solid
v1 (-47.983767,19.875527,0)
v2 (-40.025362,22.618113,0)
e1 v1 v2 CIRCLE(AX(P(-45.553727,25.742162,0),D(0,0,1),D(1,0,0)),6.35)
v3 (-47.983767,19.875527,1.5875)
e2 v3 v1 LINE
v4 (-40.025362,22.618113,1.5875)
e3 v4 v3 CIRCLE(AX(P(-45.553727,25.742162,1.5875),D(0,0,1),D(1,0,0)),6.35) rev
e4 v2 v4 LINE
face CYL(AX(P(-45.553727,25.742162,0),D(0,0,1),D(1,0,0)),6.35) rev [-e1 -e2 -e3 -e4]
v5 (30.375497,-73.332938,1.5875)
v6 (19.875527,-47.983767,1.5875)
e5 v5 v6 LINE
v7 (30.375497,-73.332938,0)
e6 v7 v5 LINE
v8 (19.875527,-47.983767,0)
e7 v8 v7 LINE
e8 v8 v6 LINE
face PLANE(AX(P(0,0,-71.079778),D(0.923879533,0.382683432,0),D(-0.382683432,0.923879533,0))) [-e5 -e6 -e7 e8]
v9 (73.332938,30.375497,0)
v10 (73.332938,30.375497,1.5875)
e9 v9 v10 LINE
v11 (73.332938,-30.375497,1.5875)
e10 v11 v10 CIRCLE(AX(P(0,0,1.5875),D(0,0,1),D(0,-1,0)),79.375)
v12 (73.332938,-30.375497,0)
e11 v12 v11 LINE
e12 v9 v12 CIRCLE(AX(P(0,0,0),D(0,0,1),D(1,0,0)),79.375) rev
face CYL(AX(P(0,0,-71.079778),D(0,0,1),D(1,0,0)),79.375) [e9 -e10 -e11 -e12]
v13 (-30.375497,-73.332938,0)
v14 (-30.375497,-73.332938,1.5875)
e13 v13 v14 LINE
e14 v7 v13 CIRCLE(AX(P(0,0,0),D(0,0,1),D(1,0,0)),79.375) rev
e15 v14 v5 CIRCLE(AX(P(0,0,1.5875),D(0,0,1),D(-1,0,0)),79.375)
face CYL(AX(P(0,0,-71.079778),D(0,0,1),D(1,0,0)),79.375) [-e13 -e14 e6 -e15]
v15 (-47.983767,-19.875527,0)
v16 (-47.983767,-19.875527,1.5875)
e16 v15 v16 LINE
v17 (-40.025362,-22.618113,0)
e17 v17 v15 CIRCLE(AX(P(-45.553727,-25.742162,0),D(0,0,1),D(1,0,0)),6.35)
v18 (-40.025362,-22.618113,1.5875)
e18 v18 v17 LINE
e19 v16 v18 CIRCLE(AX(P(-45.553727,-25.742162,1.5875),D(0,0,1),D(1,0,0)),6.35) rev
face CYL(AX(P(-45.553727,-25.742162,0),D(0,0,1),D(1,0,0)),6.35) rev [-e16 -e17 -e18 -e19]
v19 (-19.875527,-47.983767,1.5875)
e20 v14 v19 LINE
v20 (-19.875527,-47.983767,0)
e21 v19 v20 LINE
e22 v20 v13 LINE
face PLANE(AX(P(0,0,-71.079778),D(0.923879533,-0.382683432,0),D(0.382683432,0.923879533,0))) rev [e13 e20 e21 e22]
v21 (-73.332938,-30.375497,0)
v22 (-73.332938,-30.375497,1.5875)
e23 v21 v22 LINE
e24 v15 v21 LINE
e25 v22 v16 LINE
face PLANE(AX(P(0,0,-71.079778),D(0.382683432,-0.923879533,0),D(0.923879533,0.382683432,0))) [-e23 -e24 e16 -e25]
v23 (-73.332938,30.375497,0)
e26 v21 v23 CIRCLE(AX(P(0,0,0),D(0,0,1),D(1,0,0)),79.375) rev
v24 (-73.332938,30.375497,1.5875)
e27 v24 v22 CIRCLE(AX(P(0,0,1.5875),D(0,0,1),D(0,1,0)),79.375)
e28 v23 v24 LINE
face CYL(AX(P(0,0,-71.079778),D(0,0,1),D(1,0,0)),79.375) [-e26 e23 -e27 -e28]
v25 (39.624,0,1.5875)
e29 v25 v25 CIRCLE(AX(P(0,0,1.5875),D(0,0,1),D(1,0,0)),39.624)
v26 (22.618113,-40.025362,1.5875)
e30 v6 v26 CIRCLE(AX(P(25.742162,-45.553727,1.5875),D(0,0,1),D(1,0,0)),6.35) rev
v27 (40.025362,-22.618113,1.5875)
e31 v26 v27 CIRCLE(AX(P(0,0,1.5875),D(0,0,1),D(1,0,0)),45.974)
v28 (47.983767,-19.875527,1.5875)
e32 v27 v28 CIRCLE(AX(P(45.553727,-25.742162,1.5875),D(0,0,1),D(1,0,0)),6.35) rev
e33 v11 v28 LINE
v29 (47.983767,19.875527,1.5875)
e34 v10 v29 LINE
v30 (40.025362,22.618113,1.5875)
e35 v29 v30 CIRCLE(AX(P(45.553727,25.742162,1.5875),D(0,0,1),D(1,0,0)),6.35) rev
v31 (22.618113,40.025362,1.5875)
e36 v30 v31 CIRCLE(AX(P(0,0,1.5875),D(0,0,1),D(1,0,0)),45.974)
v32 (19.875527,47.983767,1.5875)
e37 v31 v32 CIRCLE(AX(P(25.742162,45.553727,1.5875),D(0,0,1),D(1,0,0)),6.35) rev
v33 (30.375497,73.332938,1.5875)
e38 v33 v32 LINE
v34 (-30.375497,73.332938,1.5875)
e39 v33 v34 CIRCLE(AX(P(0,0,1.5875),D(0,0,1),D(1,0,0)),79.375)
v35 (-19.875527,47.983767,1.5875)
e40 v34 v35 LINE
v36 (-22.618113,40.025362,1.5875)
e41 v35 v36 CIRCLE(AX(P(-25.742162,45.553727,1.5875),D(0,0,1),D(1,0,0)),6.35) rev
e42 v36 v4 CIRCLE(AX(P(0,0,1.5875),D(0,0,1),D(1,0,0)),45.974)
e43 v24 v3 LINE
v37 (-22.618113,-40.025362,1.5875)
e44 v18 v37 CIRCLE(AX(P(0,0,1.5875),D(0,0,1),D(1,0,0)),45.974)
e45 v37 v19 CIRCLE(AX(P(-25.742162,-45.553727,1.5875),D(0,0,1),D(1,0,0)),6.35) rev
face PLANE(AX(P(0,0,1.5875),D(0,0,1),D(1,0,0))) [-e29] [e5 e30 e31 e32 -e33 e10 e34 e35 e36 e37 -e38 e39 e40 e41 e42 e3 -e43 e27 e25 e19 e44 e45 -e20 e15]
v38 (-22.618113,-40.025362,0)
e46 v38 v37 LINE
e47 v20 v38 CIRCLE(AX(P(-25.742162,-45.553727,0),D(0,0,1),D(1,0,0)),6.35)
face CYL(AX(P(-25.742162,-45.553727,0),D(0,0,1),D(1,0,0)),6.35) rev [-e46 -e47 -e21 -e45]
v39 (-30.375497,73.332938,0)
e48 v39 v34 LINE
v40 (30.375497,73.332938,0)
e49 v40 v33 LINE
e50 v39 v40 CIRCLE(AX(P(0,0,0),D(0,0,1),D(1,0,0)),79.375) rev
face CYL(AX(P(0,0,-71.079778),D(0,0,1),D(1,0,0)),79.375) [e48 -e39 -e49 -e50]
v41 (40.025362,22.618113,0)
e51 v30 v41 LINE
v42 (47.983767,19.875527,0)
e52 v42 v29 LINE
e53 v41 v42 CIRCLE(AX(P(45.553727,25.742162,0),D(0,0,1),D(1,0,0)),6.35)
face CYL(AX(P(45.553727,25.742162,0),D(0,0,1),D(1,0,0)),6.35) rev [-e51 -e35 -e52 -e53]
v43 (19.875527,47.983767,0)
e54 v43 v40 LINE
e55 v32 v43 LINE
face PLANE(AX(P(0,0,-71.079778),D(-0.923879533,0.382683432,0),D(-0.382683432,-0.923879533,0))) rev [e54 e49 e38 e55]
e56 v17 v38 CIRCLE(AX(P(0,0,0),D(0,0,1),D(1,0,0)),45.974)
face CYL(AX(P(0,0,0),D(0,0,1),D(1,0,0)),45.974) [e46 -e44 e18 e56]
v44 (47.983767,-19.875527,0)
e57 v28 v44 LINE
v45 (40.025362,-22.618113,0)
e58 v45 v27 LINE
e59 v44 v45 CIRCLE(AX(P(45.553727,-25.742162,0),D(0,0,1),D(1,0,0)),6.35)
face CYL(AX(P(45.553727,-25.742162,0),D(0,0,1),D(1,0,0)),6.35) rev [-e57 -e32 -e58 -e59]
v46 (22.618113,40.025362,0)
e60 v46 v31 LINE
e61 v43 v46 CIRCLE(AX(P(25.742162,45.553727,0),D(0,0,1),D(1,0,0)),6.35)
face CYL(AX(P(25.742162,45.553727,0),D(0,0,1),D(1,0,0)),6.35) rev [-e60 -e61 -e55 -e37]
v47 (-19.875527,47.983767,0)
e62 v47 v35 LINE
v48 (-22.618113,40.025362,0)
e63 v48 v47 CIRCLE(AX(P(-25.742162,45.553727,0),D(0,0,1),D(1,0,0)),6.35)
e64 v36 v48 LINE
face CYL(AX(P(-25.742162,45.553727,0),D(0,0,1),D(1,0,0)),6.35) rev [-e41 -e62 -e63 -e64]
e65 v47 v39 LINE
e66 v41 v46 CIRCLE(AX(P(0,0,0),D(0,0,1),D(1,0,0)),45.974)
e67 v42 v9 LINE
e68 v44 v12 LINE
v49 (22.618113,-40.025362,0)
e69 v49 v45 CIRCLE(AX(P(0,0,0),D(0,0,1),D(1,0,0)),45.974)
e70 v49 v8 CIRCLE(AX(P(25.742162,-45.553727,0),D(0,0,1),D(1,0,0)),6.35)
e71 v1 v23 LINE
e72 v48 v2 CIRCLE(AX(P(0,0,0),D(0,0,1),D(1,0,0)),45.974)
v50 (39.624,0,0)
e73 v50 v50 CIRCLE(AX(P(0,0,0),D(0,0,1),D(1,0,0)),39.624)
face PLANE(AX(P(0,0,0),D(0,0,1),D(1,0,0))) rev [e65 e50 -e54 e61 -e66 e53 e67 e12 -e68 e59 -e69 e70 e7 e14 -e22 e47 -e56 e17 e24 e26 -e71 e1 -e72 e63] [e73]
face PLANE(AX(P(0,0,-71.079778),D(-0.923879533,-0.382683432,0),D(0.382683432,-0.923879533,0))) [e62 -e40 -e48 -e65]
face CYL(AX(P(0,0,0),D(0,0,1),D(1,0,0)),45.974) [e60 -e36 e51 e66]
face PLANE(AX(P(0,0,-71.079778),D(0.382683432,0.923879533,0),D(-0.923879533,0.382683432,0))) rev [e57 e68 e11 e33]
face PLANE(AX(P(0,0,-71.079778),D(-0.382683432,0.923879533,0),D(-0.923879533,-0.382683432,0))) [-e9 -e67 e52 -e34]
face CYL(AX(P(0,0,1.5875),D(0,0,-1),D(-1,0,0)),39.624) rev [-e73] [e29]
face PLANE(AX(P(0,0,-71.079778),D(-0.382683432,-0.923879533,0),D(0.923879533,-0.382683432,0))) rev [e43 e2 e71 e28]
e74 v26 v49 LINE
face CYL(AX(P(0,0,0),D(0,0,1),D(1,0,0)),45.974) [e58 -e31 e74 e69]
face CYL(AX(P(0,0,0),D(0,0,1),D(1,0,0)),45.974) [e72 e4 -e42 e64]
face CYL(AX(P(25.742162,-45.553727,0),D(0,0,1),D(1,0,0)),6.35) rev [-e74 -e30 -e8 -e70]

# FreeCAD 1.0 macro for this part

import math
import FreeCAD as App
import Part
import Sketcher

V = App.Vector
Q = App.Units.Quantity


def edges_at(feature, points):
    """Names of the edges that pass closest to the given points."""
    edges = feature.Shape.Edges
    near = lambda p: min(range(len(edges)), key=lambda i: edges[i].distToShape(Part.Vertex(*p))[0])
    return sorted({f"Edge{near(p) + 1}" for p in points})

doc = App.newDocument("Part")
body = doc.addObject("PartDesign::Body", "Body")

# Sketch on XY plane
sketch1 = body.newObject("Sketcher::SketchObject", "Sketch")
sketch1.AttachmentSupport = (doc.getObject("XY_Plane"), [""])
sketch1.MapMode = "FlatFace"
sketch1.addGeometry([
    Part.Circle(V(0, 0, 0), V(0, 0, 1), 79.375),
    Part.Circle(V(0, 0, 0), V(0, 0, 1), 39.624),
], False)
sketch1.addConstraint([
    Sketcher.Constraint("Coincident", 0, 3, -1, 1),
    Sketcher.Constraint("Coincident", 1, 3, -1, 1),
    Sketcher.Constraint("Diameter", 0, Q("6.25 in")),
    Sketcher.Constraint("Diameter", 1, Q("3.12 in")),
])
pad1 = body.newObject("PartDesign::Pad", "Pad")
pad1.Profile = sketch1
pad1.Length = Q("0.0625 in")

# Sketch on XY plane
sketch2 = body.newObject("Sketcher::SketchObject", "Sketch001")
sketch2.AttachmentSupport = (doc.getObject("XY_Plane"), [""])
sketch2.MapMode = "FlatFace"
sketch2.AttachmentOffset = App.Placement(V(0, 0, 0.0625 * 25.4), App.Rotation())
sketch2.addGeometry([
    Part.Circle(V(0, 0, 0), V(0, 0, 1), 79.375),
    Part.Circle(V(0, 0, 0), V(0, 0, 1), 45.974),
], False)
sketch2.addConstraint([
    Sketcher.Constraint("Coincident", 0, 3, -1, 1),
    Sketcher.Constraint("Coincident", 1, 3, -1, 1),
    Sketcher.Constraint("Diameter", 0, Q("6.25 in")),
    Sketcher.Constraint("Diameter", 1, Q("3.62 in")),
])
pocket1 = body.newObject("PartDesign::Pocket", "Pocket")
pocket1.Profile = sketch2
pocket1.Type = "ThroughAll"

# Sketch on XY plane
sketch3 = body.newObject("Sketcher::SketchObject", "Sketch002")
sketch3.AttachmentSupport = (doc.getObject("XY_Plane"), [""])
sketch3.MapMode = "FlatFace"
sketch3.AttachmentOffset = App.Placement(V(0, 0, 0.0625 * 25.4), App.Rotation())
sketch3.addGeometry([
    Part.ArcOfCircle(Part.Circle(V(0, 0, 0), V(0, 0, 1), 79.375), math.radians(67.5), math.radians(112.5)),
    Part.LineSegment(V(-30.375497, 73.332938, 0), V(-17.593488, 42.474438, 0)),
    Part.ArcOfCircle(Part.Circle(V(0, 0, 0), V(0, 0, 1), 45.974), math.radians(67.5), math.radians(112.5)),
    Part.LineSegment(V(17.593488, 42.474438, 0), V(30.375497, 73.332938, 0)),
], False)
sketch3.addConstraint([
    Sketcher.Constraint("Coincident", 0, 2, 1, 1),
    Sketcher.Constraint("Coincident", 1, 2, 2, 2),
    Sketcher.Constraint("Coincident", 2, 1, 3, 1),
    Sketcher.Constraint("Coincident", 3, 2, 0, 1),
    Sketcher.Constraint("Coincident", 0, 3, -1, 1),
    Sketcher.Constraint("Coincident", 2, 3, -1, 1),
    Sketcher.Constraint("Horizontal", 1, 2, 2, 1),
    Sketcher.Constraint("Horizontal", 0, 2, 3, 2),
    Sketcher.Constraint("Radius", 2, Q("1.81 in")),
    Sketcher.Constraint("Radius", 0, Q("3.125 in")),
    Sketcher.Constraint("Angle", 1, Q("-67.5 deg")),
    Sketcher.Constraint("DistanceX", 1, 2, -1, 1, Q("17.593488 mm")),
])
pad2 = body.newObject("PartDesign::Pad", "Pad001")
pad2.Profile = sketch3
pad2.Length = Q("0.0625 in")
pad2.Reversed = True
doc.recompute()

fillet = body.newObject("PartDesign::Fillet", "Fillet")
fillet.Base = (pad2, edges_at(pad2, [(17.593, 42.474, 0.794), (-17.593, 42.474, 0.794)]))
fillet.Radius = Q("0.25 in")
doc.recompute()

polarpattern = body.newObject("PartDesign::PolarPattern", "PolarPattern")
polarpattern.Originals = [pad2]
polarpattern.Axis = (doc.getObject("Z_Axis"), [""])
polarpattern.Angle = 360
polarpattern.Occurrences = 4
body.Tip = polarpattern
doc.recompute()

fillet2 = body.newObject("PartDesign::Fillet", "Fillet001")
fillet2.Base = (polarpattern, edges_at(polarpattern, [
    (-42.474, 17.593, 0.794),
    (-42.474, -17.593, 0.794),
    (-17.593, -42.474, 0.794),
    (17.593, -42.474, 0.794),
    (42.474, -17.593, 0.794),
    (42.474, 17.593, 0.794),
]))
fillet2.Radius = Q("0.25 in")

doc.recompute()
